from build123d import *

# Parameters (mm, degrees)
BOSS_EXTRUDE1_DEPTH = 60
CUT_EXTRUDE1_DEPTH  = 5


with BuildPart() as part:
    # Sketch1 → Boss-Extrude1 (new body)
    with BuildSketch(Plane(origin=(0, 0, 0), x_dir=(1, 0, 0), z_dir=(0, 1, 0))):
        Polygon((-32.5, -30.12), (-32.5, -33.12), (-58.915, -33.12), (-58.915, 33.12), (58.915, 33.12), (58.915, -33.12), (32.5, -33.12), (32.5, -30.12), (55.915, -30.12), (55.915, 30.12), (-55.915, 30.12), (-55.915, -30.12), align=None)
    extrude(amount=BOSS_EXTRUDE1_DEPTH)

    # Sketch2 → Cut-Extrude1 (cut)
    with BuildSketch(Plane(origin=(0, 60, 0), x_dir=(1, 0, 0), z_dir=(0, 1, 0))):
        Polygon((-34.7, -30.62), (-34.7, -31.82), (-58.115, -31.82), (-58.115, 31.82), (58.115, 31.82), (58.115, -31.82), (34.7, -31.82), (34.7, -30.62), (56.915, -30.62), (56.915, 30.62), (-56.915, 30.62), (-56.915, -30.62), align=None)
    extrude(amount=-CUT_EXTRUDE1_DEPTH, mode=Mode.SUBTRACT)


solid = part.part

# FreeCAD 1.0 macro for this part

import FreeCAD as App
import Part
import Sketcher
from FreeCAD import Vector
Q = App.Units.Quantity

doc = App.newDocument("Part")
body = doc.addObject("PartDesign::Body", "Body")

# Sketch on XZ plane
sketch1 = body.newObject("Sketcher::SketchObject", "Sketch")
sketch1.AttachmentSupport = (doc.getObject("XZ_Plane"), [""])
sketch1.MapMode = "FlatFace"
sketch1.addGeometry(Part.LineSegment(Vector(-32.5, 33.1, 0), Vector(-32.5, 30.1, 0)), False)
sketch1.addGeometry(Part.LineSegment(Vector(-32.5, 30.1, 0), Vector(-55.9, 30.1, 0)), False)
sketch1.addGeometry(Part.LineSegment(Vector(-55.9, 30.1, 0), Vector(-55.9, -30.1, 0)), False)
sketch1.addGeometry(Part.LineSegment(Vector(-55.9, -30.1, 0), Vector(55.9, -30.1, 0)), False)
sketch1.addGeometry(Part.LineSegment(Vector(55.9, -30.1, 0), Vector(55.9, 30.1, 0)), False)
sketch1.addGeometry(Part.LineSegment(Vector(55.9, 30.1, 0), Vector(32.5, 30.1, 0)), False)
sketch1.addGeometry(Part.LineSegment(Vector(32.5, 30.1, 0), Vector(32.5, 33.1, 0)), False)
sketch1.addGeometry(Part.LineSegment(Vector(32.5, 33.1, 0), Vector(58.9, 33.1, 0)), False)
sketch1.addGeometry(Part.LineSegment(Vector(58.9, 33.1, 0), Vector(58.9, -33.1, 0)), False)
sketch1.addGeometry(Part.LineSegment(Vector(58.9, -33.1, 0), Vector(-58.9, -33.1, 0)), False)
sketch1.addGeometry(Part.LineSegment(Vector(-58.9, -33.1, 0), Vector(-58.9, 33.1, 0)), False)
sketch1.addGeometry(Part.LineSegment(Vector(-58.9, 33.1, 0), Vector(-32.5, 33.1, 0)), False)
sketch1.addConstraint(Sketcher.Constraint("Coincident", 0, 2, 1, 1))
sketch1.addConstraint(Sketcher.Constraint("Coincident", 1, 2, 2, 1))
sketch1.addConstraint(Sketcher.Constraint("Coincident", 2, 2, 3, 1))
sketch1.addConstraint(Sketcher.Constraint("Coincident", 3, 2, 4, 1))
sketch1.addConstraint(Sketcher.Constraint("Coincident", 4, 2, 5, 1))
sketch1.addConstraint(Sketcher.Constraint("Coincident", 5, 2, 6, 1))
sketch1.addConstraint(Sketcher.Constraint("Coincident", 6, 2, 7, 1))
sketch1.addConstraint(Sketcher.Constraint("Coincident", 7, 2, 8, 1))
sketch1.addConstraint(Sketcher.Constraint("Coincident", 8, 2, 9, 1))
sketch1.addConstraint(Sketcher.Constraint("Coincident", 9, 2, 10, 1))
sketch1.addConstraint(Sketcher.Constraint("Coincident", 10, 2, 11, 1))
sketch1.addConstraint(Sketcher.Constraint("Coincident", 11, 2, 0, 1))
sketch1.addConstraint(Sketcher.Constraint("Vertical", 0))
sketch1.addConstraint(Sketcher.Constraint("Horizontal", 1))
sketch1.addConstraint(Sketcher.Constraint("Vertical", 2))
sketch1.addConstraint(Sketcher.Constraint("Horizontal", 3))
sketch1.addConstraint(Sketcher.Constraint("Vertical", 4))
sketch1.addConstraint(Sketcher.Constraint("Horizontal", 5))
sketch1.addConstraint(Sketcher.Constraint("Vertical", 6))
sketch1.addConstraint(Sketcher.Constraint("Horizontal", 7))
sketch1.addConstraint(Sketcher.Constraint("Vertical", 8))
sketch1.addConstraint(Sketcher.Constraint("Horizontal", 9))
sketch1.addConstraint(Sketcher.Constraint("Vertical", 10))
sketch1.addConstraint(Sketcher.Constraint("Horizontal", 11))
sketch1.addConstraint(Sketcher.Constraint("Symmetric", 1, 2, 3, 2, -1, 1))
sketch1.addConstraint(Sketcher.Constraint("Symmetric", 7, 2, 9, 2, -1, 1))
sketch1.addConstraint(Sketcher.Constraint("Symmetric", 0, 2, 5, 2, -2))
sketch1.addConstraint(Sketcher.Constraint("Horizontal", 7, 2, 10, 2))
sketch1.addConstraint(Sketcher.Constraint("DistanceY", 0, 2, 0, 1, Q("3 mm")))
sketch1.addConstraint(Sketcher.Constraint("DistanceX", 0, 2, 5, 2, Q("65 mm")))
sketch1.addConstraint(Sketcher.Constraint("DistanceX", 4, 2, 7, 2, Q("3 mm")))
sketch1.addConstraint(Sketcher.Constraint("DistanceX", 3, 1, 3, 2, Q("111.83 mm")))
sketch1.addConstraint(Sketcher.Constraint("DistanceY", 2, 2, 2, 1, Q("60.24 mm")))
pad1 = body.newObject("PartDesign::Pad", "Pad")
pad1.Profile = sketch1
pad1.Length = 60
pad1.Reversed = True

# Sketch on XZ plane
sketch2 = body.newObject("Sketcher::SketchObject", "Sketch001")
sketch2.AttachmentSupport = (doc.getObject("XZ_Plane"), [""])
sketch2.MapMode = "FlatFace"
sketch2.AttachmentOffset = App.Placement(Vector(0, 0, -60), App.Rotation())
sketch2.addGeometry(Part.LineSegment(Vector(-34.7, 31.8, 0), Vector(-34.7, 30.6, 0)), False)
sketch2.addGeometry(Part.LineSegment(Vector(-34.7, 30.6, 0), Vector(-56.9, 30.6, 0)), False)
sketch2.addGeometry(Part.LineSegment(Vector(-56.9, 30.6, 0), Vector(-56.9, -30.6, 0)), False)
sketch2.addGeometry(Part.LineSegment(Vector(-56.9, -30.6, 0), Vector(56.9, -30.6, 0)), False)
sketch2.addGeometry(Part.LineSegment(Vector(56.9, -30.6, 0), Vector(56.9, 30.6, 0)), False)
sketch2.addGeometry(Part.LineSegment(Vector(56.9, 30.6, 0), Vector(34.7, 30.6, 0)), False)
sketch2.addGeometry(Part.LineSegment(Vector(34.7, 30.6, 0), Vector(34.7, 31.8, 0)), False)
sketch2.addGeometry(Part.LineSegment(Vector(34.7, 31.8, 0), Vector(58.1, 31.8, 0)), False)
sketch2.addGeometry(Part.LineSegment(Vector(58.1, 31.8, 0), Vector(58.1, -31.8, 0)), False)
sketch2.addGeometry(Part.LineSegment(Vector(58.1, -31.8, 0), Vector(-58.1, -31.8, 0)), False)
sketch2.addGeometry(Part.LineSegment(Vector(-58.1, -31.8, 0), Vector(-58.1, 31.8, 0)), False)
sketch2.addGeometry(Part.LineSegment(Vector(-58.1, 31.8, 0), Vector(-34.7, 31.8, 0)), False)
sketch2.addConstraint(Sketcher.Constraint("Coincident", 0, 2, 1, 1))
sketch2.addConstraint(Sketcher.Constraint("Coincident", 1, 2, 2, 1))
sketch2.addConstraint(Sketcher.Constraint("Coincident", 2, 2, 3, 1))
sketch2.addConstraint(Sketcher.Constraint("Coincident", 3, 2, 4, 1))
sketch2.addConstraint(Sketcher.Constraint("Coincident", 4, 2, 5, 1))
sketch2.addConstraint(Sketcher.Constraint("Coincident", 5, 2, 6, 1))
sketch2.addConstraint(Sketcher.Constraint("Coincident", 6, 2, 7, 1))
sketch2.addConstraint(Sketcher.Constraint("Coincident", 7, 2, 8, 1))
sketch2.addConstraint(Sketcher.Constraint("Coincident", 8, 2, 9, 1))
sketch2.addConstraint(Sketcher.Constraint("Coincident", 9, 2, 10, 1))
sketch2.addConstraint(Sketcher.Constraint("Coincident", 10, 2, 11, 1))
sketch2.addConstraint(Sketcher.Constraint("Coincident", 11, 2, 0, 1))
sketch2.addConstraint(Sketcher.Constraint("Vertical", 0))
sketch2.addConstraint(Sketcher.Constraint("Horizontal", 1))
sketch2.addConstraint(Sketcher.Constraint("Vertical", 2))
sketch2.addConstraint(Sketcher.Constraint("Horizontal", 3))
sketch2.addConstraint(Sketcher.Constraint("Vertical", 4))
sketch2.addConstraint(Sketcher.Constraint("Horizontal", 5))
sketch2.addConstraint(Sketcher.Constraint("Vertical", 6))
sketch2.addConstraint(Sketcher.Constraint("Horizontal", 7))
sketch2.addConstraint(Sketcher.Constraint("Vertical", 8))
sketch2.addConstraint(Sketcher.Constraint("Horizontal", 9))
sketch2.addConstraint(Sketcher.Constraint("Vertical", 10))
sketch2.addConstraint(Sketcher.Constraint("Horizontal", 11))
sketch2.addConstraint(Sketcher.Constraint("Symmetric", 1, 2, 3, 2, -1, 1))
sketch2.addConstraint(Sketcher.Constraint("Symmetric", 7, 2, 9, 2, -1, 1))
sketch2.addConstraint(Sketcher.Constraint("Symmetric", 0, 2, 5, 2, -2))
sketch2.addConstraint(Sketcher.Constraint("Horizontal", 7, 2, 10, 2))
sketch2.addConstraint(Sketcher.Constraint("DistanceY", 0, 2, 0, 1, Q("1.2 mm")))
sketch2.addConstraint(Sketcher.Constraint("DistanceX", 3, 1, 3, 2, Q("113.83 mm")))
sketch2.addConstraint(Sketcher.Constraint("DistanceX", 9, 2, 9, 1, Q("116.23 mm")))
sketch2.addConstraint(Sketcher.Constraint("DistanceY", 2, 2, 2, 1, Q("61.24 mm")))
sketch2.addConstraint(Sketcher.Constraint("DistanceX", 0, 2, -1, 1, Q("34.7 mm")))
pocket1 = body.newObject("PartDesign::Pocket", "Pocket")
pocket1.Profile = sketch2
pocket1.Length = 5
pocket1.Reversed = True

doc.recompute()
